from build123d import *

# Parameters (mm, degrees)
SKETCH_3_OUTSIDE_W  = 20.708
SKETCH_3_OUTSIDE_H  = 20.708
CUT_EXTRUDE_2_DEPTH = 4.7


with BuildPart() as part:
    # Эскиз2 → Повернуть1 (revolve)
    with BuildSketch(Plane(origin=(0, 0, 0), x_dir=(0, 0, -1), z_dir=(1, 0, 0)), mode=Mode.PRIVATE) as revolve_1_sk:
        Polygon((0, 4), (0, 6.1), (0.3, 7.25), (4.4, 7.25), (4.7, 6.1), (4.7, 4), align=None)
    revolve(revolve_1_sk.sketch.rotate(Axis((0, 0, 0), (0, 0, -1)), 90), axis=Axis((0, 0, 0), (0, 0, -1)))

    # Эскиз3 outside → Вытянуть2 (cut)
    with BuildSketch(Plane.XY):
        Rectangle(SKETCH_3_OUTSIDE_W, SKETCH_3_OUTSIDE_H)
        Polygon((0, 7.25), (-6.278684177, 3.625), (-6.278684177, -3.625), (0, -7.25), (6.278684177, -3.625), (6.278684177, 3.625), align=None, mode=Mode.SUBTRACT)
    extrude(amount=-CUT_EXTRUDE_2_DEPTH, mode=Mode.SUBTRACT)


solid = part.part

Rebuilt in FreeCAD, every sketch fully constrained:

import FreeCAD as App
import Part
import Sketcher

V = App.Vector
Q = App.Units.Quantity


def add_polygon(sketch, points):
    """Adds a closed chain of lines whose ends are joined by coincident constraints."""
    first, n = sketch.GeometryCount, len(points)
    for a, b in zip(points, points[1:] + points[:1]):
        sketch.addGeometry(Part.LineSegment(App.Vector(*a, 0), App.Vector(*b, 0)), False)
    for i in range(n):
        sketch.addConstraint(Sketcher.Constraint("Coincident", first + i, 2, first + (i + 1) % n, 1))

doc = App.newDocument("Part")
body = doc.addObject("PartDesign::Body", "Body")

sketch1 = doc.addObject("Sketcher::SketchObject", "Sketch")
body.addObject(sketch1)
sketch1.AttachmentSupport = (doc.YZ_Plane, [""])
sketch1.MapMode = "FlatFace"
add_polygon(sketch1, [(6.1, 0), (4, 0), (4, -4.7), (6.1, -4.7), (7.2, -4.4), (7.2, -0.3)])
sketch1.addConstraint(Sketcher.Constraint("Horizontal", 0))
sketch1.addConstraint(Sketcher.Constraint("Vertical", 1))
sketch1.addConstraint(Sketcher.Constraint("Horizontal", 2))
sketch1.addConstraint(Sketcher.Constraint("Vertical", 4))
sketch1.addConstraint(Sketcher.Constraint("PointOnObject", 0, 2, -1))
sketch1.addConstraint(Sketcher.Constraint("Vertical", 2, 2, 5, 2))
sketch1.addConstraint(Sketcher.Constraint("Equal", 3, 5))
sketch1.addConstraint(Sketcher.Constraint("DistanceX", 0, 2, 0, 1, Q("2.1 mm")))
sketch1.addConstraint(Sketcher.Constraint("DistanceY", 1, 2, 1, 1, Q("4.7 mm")))
sketch1.addConstraint(Sketcher.Constraint("DistanceY", 4, 1, 4, 2, Q("4.1 mm")))
sketch1.addConstraint(Sketcher.Constraint("DistanceX", -1, 1, 0, 2, Q("4 mm")))
sketch1.addConstraint(Sketcher.Constraint("DistanceX", -1, 1, 3, 2, Q("7.25 mm")))
revolution = doc.addObject("PartDesign::Revolution", "Revolution")
body.addObject(revolution)
revolution.Profile = sketch1
revolution.ReferenceAxis = (sketch1, ["V_Axis"])
revolution.Angle = 360

sketch2 = doc.addObject("Sketcher::SketchObject", "Sketch001")
body.addObject(sketch2)
sketch2.AttachmentSupport = (doc.XY_Plane, [""])
sketch2.MapMode = "FlatFace"
add_polygon(sketch2, [(-10, 10), (-10, -10), (10, -10), (10, 10)])
add_polygon(sketch2, [(-6, 4), (0, 7), (6, 4), (6, -4), (0, -7), (-6, -4)])
sketch2.addConstraint(Sketcher.Constraint("Vertical", 0))
sketch2.addConstraint(Sketcher.Constraint("Horizontal", 1))
sketch2.addConstraint(Sketcher.Constraint("Vertical", 2))
sketch2.addConstraint(Sketcher.Constraint("Horizontal", 3))
sketch2.addConstraint(Sketcher.Constraint("Vertical", 6))
sketch2.addConstraint(Sketcher.Constraint("Vertical", 9))
sketch2.addConstraint(Sketcher.Constraint("Symmetric", 0, 2, 2, 2, -1, 1))
sketch2.addConstraint(Sketcher.Constraint("Symmetric", 4, 2, 7, 2, -1, 1))
sketch2.addConstraint(Sketcher.Constraint("Symmetric", 5, 2, 8, 2, -1, 1))
sketch2.addConstraint(Sketcher.Constraint("PointOnObject", 4, 2, -2))
sketch2.addConstraint(Sketcher.Constraint("Parallel", 4, 7))
sketch2.addConstraint(Sketcher.Constraint("Horizontal", 6, 2, 8, 2))
sketch2.addConstraint(Sketcher.Constraint("Equal", 3, 0))
sketch2.addConstraint(Sketcher.Constraint("Angle", 4, Q("30 deg")))
sketch2.addConstraint(Sketcher.Constraint("DistanceY", 6, 2, 6, 1, Q("7.25 mm")))
sketch2.addConstraint(Sketcher.Constraint("DistanceY", 7, 2, 4, 2, Q("14.5 mm")))
sketch2.addConstraint(Sketcher.Constraint("DistanceX", 1, 1, 1, 2, Q("20.708 mm")))
pocket1 = doc.addObject("PartDesign::Pocket", "Pocket")
body.addObject(pocket1)
pocket1.Profile = sketch2
pocket1.Length = 4.7

doc.recompute()
